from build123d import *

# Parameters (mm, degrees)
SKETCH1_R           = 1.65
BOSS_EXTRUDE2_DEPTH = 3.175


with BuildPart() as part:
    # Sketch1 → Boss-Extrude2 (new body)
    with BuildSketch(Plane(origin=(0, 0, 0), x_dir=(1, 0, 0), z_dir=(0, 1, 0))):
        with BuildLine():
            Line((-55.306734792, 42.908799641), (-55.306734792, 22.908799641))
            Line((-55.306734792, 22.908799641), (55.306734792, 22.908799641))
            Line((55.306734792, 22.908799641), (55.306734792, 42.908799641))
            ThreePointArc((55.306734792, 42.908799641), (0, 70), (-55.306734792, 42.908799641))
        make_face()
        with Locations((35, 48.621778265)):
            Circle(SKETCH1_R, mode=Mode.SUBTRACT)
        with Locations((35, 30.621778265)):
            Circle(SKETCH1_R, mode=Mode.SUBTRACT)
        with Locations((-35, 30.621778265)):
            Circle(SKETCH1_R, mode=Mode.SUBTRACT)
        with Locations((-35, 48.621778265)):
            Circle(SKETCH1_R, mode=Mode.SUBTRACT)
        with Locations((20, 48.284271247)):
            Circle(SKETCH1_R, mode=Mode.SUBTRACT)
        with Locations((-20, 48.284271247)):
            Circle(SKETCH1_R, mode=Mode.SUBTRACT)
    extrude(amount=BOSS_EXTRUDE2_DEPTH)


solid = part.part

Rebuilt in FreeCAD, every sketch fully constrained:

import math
import FreeCAD as App
import Part
import Sketcher
Q = App.Units.Quantity

doc = App.newDocument("Part")
body = doc.addObject("PartDesign::Body", "Body")

sketch1 = body.newObject("Sketcher::SketchObject", "Sketch")
sketch1.AttachmentSupport = (doc.getObject("XZ_Plane"), [""])
sketch1.MapMode = "FlatFace"
sketch1.addGeometry([
    Part.LineSegment(App.Vector(-55.3, -42.9, 0), App.Vector(-55.3, -22.9, 0)),
    Part.LineSegment(App.Vector(-55.3, -22.9, 0), App.Vector(55.3, -22.9, 0)),
    Part.LineSegment(App.Vector(55.3, -22.9, 0), App.Vector(55.3, -42.9, 0)),
    Part.ArcOfCircle(Part.Circle(App.Vector(0, 0, 0), App.Vector(0, 0, 1), 70), math.radians(-142), math.radians(-38)),
    Part.Circle(App.Vector(-35, -30.6, 0), App.Vector(0, 0, 1), 1.6),
    Part.Circle(App.Vector(35, -30.6, 0), App.Vector(0, 0, 1), 1.6),
    Part.Circle(App.Vector(-35, -48.6, 0), App.Vector(0, 0, 1), 1.6),
    Part.Circle(App.Vector(-20, -48.3, 0), App.Vector(0, 0, 1), 1.6),
    Part.Circle(App.Vector(20, -48.3, 0), App.Vector(0, 0, 1), 1.6),
    Part.Circle(App.Vector(35, -48.6, 0), App.Vector(0, 0, 1), 1.6),
], False)
sketch1.addConstraint([
    Sketcher.Constraint("Coincident", 0, 2, 1, 1),
    Sketcher.Constraint("Coincident", 1, 2, 2, 1),
    Sketcher.Constraint("Coincident", 2, 2, 3, 2),
    Sketcher.Constraint("Coincident", 3, 1, 0, 1),
    Sketcher.Constraint("Vertical", 0),
    Sketcher.Constraint("Horizontal", 1),
    Sketcher.Constraint("Vertical", 2),
    Sketcher.Constraint("Coincident", 3, 3, -1, 1),
    Sketcher.Constraint("Equal", 4, 5),
    Sketcher.Constraint("Equal", 5, 6),
    Sketcher.Constraint("Equal", 6, 7),
    Sketcher.Constraint("Equal", 7, 8),
    Sketcher.Constraint("Equal", 8, 9),
    Sketcher.Constraint("Symmetric", 4, 3, 5, 3, -2),
    Sketcher.Constraint("Symmetric", 7, 3, 8, 3, -2),
    Sketcher.Constraint("Symmetric", 6, 3, 9, 3, -2),
    Sketcher.Constraint("Horizontal", 2, 2, 3, 1),
    Sketcher.Constraint("Vertical", 4, 3, 6, 3),
    Sketcher.Constraint("Radius", 3, Q("70 mm")),
    Sketcher.Constraint("Diameter", 4, Q("3.3 mm")),
    Sketcher.Constraint("DistanceY", 0, 1, 0, 2, Q("20 mm")),
    Sketcher.Constraint("DistanceX", 4, 3, -1, 1, Q("35 mm")),
    Sketcher.Constraint("DistanceX", 7, 3, -1, 1, Q("20 mm")),
    Sketcher.Constraint("DistanceY", 6, 3, 4, 3, Q("18 mm")),
    Sketcher.Constraint("DistanceX", 1, 1, 1, 2, Q("110.61347 mm")),
    Sketcher.Constraint("DistanceY", 4, 3, -1, 1, Q("30.621778 mm")),
    Sketcher.Constraint("DistanceY", 7, 3, -1, 1, Q("48.284271 mm")),
])
pad1 = body.newObject("PartDesign::Pad", "Pad")
pad1.Profile = sketch1
pad1.Length = 3.175
pad1.Reversed = True

doc.recompute()
